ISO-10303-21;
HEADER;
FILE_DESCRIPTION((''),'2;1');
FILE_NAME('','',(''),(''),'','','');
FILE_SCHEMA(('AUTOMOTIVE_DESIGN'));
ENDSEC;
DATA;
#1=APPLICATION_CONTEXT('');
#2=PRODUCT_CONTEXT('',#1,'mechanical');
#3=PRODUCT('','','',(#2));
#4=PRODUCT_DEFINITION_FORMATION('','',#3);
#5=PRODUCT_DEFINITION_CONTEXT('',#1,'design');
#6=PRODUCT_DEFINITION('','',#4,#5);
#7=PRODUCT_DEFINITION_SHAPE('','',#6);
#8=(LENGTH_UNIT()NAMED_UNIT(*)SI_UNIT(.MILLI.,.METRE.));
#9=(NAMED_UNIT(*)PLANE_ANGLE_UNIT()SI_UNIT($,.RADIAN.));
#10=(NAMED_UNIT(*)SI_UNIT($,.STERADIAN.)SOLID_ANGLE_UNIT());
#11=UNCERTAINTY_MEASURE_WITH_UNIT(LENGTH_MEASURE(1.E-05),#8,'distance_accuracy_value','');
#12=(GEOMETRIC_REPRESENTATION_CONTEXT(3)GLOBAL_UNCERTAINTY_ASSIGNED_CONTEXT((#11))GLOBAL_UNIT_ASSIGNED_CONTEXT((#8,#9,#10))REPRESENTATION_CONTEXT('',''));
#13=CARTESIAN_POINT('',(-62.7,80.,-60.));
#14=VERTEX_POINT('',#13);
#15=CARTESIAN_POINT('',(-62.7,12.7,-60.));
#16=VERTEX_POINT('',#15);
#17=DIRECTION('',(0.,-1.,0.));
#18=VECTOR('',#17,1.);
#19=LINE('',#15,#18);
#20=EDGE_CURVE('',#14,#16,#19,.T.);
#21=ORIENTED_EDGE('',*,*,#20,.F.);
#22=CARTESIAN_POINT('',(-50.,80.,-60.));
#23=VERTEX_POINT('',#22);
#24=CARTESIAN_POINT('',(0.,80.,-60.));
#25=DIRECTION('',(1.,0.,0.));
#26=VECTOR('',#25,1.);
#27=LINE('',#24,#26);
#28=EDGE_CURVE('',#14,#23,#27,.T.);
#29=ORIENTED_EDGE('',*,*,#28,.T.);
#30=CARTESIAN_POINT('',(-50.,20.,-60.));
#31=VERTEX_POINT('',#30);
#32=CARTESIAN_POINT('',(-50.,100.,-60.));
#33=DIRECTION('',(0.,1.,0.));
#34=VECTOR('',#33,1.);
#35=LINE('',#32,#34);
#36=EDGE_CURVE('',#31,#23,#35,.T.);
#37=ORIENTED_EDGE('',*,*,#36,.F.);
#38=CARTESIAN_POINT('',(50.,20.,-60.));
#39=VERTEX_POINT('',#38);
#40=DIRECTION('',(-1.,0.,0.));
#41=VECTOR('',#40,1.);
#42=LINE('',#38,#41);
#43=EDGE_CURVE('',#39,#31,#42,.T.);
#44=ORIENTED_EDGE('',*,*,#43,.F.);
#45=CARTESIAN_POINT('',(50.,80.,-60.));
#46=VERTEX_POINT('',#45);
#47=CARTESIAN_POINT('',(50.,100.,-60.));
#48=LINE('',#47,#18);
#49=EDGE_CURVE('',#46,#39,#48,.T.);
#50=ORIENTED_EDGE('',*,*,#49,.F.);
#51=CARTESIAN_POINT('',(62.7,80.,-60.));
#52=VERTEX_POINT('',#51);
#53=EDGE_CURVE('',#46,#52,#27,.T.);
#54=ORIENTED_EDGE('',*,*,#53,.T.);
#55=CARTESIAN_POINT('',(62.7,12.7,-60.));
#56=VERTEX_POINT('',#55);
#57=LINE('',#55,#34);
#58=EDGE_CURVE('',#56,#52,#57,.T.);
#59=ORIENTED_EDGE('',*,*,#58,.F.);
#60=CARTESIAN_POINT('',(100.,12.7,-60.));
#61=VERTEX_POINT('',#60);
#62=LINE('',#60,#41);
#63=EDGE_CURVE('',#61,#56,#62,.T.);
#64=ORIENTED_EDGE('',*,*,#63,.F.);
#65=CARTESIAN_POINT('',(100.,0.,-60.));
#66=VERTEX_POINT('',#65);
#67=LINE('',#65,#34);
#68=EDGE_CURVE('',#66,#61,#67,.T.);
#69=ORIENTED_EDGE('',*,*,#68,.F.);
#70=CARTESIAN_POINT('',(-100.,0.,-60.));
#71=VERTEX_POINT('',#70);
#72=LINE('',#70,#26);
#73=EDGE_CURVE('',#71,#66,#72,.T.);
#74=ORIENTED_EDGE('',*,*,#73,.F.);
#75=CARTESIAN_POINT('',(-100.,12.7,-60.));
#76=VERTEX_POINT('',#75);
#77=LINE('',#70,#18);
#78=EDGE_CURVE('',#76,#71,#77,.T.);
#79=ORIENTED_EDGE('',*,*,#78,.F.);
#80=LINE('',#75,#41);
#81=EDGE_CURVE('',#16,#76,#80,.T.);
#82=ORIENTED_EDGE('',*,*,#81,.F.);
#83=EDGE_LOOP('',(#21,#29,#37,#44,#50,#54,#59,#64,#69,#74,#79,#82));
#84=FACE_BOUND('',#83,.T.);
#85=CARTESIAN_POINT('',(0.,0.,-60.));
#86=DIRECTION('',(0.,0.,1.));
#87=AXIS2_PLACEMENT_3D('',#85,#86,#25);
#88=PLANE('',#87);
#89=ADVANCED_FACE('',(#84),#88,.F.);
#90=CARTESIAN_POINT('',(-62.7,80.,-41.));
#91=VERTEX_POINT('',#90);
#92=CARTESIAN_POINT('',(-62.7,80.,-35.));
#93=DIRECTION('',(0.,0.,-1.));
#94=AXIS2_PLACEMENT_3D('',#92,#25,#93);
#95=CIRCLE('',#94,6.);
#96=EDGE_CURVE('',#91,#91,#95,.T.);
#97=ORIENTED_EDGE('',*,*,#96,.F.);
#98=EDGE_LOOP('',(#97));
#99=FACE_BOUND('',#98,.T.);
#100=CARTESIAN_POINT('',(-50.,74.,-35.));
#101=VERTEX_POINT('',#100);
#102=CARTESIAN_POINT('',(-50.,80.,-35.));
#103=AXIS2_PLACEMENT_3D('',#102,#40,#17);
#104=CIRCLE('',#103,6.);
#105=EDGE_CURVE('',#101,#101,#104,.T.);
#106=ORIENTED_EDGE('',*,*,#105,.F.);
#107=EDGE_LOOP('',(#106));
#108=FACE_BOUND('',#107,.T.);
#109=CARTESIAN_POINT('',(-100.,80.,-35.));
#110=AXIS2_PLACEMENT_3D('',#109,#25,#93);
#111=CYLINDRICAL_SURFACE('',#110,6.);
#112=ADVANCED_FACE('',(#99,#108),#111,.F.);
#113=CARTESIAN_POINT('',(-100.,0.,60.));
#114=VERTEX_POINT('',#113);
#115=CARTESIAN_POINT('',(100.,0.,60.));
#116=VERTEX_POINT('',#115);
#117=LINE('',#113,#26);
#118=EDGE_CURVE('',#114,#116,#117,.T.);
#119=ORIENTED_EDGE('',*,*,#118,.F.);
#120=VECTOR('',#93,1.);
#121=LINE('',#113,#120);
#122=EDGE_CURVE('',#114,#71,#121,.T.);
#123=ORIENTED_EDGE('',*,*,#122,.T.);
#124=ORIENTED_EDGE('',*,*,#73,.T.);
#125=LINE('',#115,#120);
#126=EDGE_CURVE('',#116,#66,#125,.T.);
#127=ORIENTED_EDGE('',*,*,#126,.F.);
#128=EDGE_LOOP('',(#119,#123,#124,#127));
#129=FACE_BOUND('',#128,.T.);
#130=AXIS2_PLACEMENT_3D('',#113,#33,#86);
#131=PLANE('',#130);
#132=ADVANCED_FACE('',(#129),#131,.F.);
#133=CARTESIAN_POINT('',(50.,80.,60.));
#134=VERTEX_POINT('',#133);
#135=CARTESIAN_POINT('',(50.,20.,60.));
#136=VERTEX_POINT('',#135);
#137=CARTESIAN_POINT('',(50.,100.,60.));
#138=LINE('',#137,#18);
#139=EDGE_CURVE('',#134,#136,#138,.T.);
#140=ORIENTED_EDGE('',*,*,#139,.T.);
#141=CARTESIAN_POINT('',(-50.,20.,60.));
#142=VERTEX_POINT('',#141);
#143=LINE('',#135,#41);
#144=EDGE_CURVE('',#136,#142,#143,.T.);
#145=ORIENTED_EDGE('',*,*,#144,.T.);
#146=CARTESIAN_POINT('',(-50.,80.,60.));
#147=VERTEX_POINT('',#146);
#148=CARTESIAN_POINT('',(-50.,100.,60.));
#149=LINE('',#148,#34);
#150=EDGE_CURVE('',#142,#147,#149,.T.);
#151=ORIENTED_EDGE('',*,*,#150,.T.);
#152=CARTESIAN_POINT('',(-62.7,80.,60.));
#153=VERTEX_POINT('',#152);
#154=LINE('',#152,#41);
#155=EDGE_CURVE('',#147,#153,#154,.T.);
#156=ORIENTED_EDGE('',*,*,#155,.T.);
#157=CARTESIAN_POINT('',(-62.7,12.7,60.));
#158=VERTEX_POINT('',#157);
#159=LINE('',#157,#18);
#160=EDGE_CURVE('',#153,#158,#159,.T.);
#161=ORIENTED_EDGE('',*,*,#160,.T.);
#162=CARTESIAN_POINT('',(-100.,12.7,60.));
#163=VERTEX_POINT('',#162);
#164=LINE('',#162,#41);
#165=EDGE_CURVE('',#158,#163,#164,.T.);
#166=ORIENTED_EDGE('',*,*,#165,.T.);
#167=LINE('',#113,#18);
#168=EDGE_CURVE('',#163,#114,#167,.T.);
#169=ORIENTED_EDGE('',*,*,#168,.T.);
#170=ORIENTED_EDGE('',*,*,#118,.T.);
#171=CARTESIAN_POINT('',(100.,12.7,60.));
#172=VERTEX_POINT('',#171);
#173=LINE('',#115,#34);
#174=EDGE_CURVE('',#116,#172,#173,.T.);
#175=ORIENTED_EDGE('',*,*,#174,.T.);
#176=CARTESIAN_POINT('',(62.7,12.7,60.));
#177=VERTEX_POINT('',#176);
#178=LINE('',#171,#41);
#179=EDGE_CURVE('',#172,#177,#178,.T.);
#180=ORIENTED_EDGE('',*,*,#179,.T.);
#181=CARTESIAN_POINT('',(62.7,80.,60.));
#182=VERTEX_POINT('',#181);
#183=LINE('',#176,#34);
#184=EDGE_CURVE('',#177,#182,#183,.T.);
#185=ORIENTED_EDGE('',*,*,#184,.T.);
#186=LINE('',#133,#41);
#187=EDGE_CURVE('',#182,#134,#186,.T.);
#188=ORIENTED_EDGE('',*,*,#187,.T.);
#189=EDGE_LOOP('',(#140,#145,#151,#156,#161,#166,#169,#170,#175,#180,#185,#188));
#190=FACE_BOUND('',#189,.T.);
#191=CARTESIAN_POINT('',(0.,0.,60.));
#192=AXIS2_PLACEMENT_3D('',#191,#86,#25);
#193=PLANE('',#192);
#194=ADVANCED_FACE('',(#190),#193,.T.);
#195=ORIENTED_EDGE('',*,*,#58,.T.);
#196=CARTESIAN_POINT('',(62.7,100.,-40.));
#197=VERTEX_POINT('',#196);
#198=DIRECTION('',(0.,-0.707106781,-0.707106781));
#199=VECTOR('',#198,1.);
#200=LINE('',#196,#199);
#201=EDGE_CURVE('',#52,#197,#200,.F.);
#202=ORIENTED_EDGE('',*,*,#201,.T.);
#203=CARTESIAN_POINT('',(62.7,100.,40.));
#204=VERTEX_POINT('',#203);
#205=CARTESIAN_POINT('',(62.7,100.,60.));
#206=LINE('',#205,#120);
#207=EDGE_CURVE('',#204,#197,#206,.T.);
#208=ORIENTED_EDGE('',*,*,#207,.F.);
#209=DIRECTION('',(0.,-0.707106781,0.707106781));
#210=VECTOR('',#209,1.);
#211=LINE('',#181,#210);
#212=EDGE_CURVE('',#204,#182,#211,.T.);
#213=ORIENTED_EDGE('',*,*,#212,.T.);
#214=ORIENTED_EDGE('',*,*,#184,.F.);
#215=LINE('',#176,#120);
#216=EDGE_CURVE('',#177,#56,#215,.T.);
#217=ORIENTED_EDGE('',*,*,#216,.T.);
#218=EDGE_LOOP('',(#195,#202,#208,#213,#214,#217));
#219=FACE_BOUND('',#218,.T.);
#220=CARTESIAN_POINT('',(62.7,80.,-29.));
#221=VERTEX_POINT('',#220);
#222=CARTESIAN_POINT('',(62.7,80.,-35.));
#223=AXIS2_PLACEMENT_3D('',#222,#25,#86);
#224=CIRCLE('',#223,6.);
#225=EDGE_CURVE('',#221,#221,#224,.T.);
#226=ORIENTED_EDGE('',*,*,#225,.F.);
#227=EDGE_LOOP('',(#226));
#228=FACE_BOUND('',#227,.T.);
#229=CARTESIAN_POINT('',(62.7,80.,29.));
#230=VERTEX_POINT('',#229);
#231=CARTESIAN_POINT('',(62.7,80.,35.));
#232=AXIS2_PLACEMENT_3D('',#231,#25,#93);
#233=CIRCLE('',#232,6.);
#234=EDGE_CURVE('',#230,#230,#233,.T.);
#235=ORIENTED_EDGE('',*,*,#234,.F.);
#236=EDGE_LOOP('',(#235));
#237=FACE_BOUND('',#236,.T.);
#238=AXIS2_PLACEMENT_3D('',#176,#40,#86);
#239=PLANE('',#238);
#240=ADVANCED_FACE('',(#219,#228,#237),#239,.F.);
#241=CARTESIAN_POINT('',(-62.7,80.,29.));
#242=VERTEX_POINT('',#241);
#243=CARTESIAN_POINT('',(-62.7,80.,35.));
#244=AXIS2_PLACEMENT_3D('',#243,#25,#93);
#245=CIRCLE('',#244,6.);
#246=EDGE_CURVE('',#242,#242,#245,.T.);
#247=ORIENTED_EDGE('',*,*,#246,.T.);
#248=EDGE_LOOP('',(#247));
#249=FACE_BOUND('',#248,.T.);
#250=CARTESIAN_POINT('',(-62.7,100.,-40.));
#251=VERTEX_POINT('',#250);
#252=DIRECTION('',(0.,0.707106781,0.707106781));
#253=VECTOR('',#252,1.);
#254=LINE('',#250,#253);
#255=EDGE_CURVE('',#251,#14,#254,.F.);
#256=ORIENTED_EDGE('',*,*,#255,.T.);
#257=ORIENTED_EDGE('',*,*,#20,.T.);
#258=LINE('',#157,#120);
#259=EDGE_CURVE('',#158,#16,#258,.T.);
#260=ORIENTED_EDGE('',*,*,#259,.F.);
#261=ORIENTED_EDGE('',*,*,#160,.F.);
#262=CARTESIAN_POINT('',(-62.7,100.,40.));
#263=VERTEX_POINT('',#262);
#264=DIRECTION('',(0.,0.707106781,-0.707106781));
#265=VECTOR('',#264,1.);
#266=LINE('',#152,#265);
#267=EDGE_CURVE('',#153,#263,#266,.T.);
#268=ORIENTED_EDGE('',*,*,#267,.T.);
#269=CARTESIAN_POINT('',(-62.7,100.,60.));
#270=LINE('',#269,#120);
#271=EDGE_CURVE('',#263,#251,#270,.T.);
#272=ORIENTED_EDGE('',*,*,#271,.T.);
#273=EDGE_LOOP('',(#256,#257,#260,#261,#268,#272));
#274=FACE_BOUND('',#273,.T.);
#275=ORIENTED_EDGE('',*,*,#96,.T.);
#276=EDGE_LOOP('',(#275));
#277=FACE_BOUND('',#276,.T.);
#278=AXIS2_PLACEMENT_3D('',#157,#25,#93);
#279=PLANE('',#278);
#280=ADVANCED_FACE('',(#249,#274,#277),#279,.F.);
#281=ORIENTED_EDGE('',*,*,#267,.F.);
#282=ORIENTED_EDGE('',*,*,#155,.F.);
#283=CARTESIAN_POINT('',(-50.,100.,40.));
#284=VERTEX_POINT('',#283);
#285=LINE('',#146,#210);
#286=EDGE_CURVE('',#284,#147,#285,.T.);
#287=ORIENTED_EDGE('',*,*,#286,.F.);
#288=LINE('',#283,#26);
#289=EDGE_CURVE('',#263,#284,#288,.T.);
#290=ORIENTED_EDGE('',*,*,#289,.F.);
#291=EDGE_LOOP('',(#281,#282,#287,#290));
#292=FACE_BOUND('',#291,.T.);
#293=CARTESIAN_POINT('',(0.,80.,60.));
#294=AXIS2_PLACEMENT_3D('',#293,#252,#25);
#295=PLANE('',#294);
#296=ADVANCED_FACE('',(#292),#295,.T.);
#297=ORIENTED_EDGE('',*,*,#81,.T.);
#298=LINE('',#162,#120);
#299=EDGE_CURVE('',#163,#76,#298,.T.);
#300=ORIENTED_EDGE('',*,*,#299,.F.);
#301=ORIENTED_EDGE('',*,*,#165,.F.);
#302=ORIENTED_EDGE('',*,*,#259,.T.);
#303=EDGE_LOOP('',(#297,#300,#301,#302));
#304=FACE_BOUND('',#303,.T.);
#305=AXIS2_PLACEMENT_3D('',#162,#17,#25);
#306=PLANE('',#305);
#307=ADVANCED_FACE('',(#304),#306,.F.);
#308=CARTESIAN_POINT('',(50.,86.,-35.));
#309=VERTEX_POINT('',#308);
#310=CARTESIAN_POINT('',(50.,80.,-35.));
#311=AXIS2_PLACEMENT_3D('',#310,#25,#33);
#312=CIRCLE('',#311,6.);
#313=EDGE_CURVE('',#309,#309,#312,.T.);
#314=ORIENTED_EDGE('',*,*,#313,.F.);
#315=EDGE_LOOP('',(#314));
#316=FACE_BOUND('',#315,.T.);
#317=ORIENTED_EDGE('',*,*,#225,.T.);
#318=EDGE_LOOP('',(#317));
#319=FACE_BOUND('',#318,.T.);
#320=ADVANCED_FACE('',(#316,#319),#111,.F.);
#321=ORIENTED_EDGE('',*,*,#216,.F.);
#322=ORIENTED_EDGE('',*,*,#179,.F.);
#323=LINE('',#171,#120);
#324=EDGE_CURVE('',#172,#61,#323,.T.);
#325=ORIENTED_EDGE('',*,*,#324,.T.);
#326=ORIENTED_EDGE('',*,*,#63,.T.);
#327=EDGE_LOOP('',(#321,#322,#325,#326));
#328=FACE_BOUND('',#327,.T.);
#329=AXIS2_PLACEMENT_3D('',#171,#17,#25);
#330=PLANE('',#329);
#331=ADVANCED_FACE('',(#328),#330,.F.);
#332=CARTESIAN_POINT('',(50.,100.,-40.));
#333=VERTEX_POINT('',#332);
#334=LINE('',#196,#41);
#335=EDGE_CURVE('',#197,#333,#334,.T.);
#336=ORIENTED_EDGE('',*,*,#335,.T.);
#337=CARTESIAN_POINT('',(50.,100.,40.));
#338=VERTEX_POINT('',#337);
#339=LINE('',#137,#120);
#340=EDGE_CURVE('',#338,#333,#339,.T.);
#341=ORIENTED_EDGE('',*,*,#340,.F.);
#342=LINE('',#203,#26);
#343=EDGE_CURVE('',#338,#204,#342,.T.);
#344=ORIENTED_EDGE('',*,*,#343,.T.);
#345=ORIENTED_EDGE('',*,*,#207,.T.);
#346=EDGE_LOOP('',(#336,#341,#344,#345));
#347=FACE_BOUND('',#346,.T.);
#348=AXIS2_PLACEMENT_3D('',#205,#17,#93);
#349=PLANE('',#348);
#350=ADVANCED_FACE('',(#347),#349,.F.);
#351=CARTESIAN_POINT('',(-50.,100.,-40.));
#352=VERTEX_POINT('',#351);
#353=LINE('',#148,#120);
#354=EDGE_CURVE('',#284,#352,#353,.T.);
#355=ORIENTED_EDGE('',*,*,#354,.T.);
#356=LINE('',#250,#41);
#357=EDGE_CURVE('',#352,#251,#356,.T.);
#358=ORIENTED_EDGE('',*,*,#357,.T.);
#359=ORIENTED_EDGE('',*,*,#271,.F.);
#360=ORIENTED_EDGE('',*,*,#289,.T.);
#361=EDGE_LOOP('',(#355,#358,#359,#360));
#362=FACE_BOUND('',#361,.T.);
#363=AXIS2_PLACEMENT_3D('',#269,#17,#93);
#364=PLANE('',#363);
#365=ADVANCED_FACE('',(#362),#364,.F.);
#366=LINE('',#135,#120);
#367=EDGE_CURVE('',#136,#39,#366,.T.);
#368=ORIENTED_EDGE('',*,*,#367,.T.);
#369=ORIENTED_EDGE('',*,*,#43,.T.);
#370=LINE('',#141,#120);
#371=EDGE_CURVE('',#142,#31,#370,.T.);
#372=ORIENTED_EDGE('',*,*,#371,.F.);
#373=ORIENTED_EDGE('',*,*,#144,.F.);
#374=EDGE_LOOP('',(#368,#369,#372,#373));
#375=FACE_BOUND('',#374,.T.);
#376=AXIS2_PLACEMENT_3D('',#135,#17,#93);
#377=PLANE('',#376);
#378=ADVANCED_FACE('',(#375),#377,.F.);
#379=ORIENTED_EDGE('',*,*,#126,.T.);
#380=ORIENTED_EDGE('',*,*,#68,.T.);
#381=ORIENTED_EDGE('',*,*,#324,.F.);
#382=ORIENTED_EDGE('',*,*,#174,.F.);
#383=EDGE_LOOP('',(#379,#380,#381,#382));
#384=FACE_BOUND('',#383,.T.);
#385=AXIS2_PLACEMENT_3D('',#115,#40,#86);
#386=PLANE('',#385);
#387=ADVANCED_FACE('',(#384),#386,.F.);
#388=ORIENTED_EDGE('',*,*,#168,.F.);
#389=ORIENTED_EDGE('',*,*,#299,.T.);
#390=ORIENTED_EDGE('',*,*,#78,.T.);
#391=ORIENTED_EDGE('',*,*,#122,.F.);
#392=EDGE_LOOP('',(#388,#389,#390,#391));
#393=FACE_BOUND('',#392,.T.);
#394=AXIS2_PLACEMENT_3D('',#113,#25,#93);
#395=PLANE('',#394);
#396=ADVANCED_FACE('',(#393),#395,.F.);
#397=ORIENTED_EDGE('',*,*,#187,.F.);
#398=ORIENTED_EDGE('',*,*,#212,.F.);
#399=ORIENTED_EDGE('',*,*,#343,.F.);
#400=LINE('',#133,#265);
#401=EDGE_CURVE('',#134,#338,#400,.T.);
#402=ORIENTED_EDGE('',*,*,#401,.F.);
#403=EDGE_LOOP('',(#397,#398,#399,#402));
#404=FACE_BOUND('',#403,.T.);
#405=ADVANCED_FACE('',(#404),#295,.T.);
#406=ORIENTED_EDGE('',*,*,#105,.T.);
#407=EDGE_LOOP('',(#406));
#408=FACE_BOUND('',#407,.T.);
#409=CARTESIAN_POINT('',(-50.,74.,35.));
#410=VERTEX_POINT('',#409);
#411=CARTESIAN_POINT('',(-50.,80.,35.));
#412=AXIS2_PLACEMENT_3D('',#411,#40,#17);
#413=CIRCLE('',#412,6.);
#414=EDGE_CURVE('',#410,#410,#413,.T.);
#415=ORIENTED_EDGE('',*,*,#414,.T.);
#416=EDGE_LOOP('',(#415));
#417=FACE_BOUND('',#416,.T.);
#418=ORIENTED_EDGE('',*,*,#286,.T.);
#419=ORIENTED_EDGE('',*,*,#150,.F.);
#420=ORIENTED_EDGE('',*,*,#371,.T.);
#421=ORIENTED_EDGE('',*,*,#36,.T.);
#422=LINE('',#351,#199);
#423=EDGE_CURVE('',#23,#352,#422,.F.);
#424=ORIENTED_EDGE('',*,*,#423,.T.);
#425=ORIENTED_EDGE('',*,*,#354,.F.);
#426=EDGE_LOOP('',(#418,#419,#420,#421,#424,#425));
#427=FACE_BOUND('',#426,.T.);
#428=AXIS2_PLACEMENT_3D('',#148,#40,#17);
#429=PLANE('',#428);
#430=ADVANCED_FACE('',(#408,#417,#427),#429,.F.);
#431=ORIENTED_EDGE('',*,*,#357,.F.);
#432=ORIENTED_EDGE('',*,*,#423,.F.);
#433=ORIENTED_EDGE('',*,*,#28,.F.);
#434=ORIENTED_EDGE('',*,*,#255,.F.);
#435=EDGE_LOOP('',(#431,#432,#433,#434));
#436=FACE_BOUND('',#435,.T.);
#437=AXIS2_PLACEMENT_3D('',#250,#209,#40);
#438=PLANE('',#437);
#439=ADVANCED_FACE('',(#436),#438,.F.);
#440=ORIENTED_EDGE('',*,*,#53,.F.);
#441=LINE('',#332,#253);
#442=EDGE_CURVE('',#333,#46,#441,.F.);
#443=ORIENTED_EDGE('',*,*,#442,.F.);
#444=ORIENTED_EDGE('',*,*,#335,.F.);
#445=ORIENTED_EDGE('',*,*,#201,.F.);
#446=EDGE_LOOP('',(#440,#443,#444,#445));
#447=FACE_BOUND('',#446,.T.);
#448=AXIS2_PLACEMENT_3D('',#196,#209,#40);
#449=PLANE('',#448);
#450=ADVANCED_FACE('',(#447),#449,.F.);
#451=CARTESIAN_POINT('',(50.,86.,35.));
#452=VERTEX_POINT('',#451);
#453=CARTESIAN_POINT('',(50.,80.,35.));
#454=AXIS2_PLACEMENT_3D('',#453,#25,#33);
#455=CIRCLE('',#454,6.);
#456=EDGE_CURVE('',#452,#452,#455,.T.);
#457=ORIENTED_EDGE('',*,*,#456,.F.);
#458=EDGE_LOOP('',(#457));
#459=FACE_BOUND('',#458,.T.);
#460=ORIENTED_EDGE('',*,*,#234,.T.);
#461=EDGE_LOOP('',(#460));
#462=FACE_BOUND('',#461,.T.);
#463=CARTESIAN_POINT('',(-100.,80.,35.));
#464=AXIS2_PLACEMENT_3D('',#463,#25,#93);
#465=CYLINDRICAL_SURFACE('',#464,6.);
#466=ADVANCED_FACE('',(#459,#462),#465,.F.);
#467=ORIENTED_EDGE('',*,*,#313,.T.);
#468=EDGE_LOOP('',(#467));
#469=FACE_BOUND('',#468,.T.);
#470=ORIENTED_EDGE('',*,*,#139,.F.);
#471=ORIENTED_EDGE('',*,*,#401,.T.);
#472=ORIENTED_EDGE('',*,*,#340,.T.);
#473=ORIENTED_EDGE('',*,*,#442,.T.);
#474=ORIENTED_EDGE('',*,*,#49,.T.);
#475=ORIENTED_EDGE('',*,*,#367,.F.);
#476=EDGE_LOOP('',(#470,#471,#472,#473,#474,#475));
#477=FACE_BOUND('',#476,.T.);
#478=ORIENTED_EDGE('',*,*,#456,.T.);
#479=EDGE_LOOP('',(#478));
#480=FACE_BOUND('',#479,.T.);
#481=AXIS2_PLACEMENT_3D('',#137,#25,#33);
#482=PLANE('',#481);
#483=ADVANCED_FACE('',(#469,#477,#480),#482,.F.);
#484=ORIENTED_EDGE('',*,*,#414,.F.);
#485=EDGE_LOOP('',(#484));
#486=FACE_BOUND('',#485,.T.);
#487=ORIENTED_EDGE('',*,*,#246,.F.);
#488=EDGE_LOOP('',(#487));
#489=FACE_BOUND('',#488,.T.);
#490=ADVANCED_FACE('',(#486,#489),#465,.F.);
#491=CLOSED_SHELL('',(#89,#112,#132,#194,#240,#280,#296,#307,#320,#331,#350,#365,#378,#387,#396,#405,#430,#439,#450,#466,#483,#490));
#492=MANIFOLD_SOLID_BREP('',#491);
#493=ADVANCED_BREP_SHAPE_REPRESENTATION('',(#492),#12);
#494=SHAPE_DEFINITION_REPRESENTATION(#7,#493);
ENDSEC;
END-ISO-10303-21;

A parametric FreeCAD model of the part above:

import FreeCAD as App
import Part
import Sketcher
from FreeCAD import Vector


def edges_at(feature, points):
    """Names of the edges that pass closest to the given points."""
    edges = feature.Shape.Edges
    near = lambda p: min(range(len(edges)), key=lambda i: edges[i].distToShape(Part.Vertex(*p))[0])
    return sorted({f"Edge{near(p) + 1}" for p in points})

doc = App.newDocument("Part")
body = doc.addObject("PartDesign::Body", "Body")

sketch1 = doc.addObject("Sketcher::SketchObject", "Sketch")
body.addObject(sketch1)
sketch1.AttachmentSupport = (doc.XY_Plane, [""])
sketch1.MapMode = "FlatFace"
sketch1.addGeometry([
    Part.LineSegment(Vector(-100, 0, 0), Vector(100, 0, 0)),
    Part.LineSegment(Vector(100, 0, 0), Vector(100, 13, 0)),
    Part.LineSegment(Vector(100, 13, 0), Vector(63, 13, 0)),
    Part.LineSegment(Vector(63, 13, 0), Vector(63, 100, 0)),
    Part.LineSegment(Vector(63, 100, 0), Vector(50, 100, 0)),
    Part.LineSegment(Vector(50, 100, 0), Vector(50, 20, 0)),
    Part.LineSegment(Vector(50, 20, 0), Vector(-50, 20, 0)),
    Part.LineSegment(Vector(-50, 20, 0), Vector(-50, 100, 0)),
    Part.LineSegment(Vector(-50, 100, 0), Vector(-63, 100, 0)),
    Part.LineSegment(Vector(-63, 100, 0), Vector(-63, 13, 0)),
    Part.LineSegment(Vector(-63, 13, 0), Vector(-100, 13, 0)),
    Part.LineSegment(Vector(-100, 13, 0), Vector(-100, 0, 0)),
], False)
sketch1.addConstraint([
    Sketcher.Constraint("Coincident", 0, 2, 1, 1),
    Sketcher.Constraint("Coincident", 1, 2, 2, 1),
    Sketcher.Constraint("Coincident", 2, 2, 3, 1),
    Sketcher.Constraint("Coincident", 3, 2, 4, 1),
    Sketcher.Constraint("Coincident", 4, 2, 5, 1),
    Sketcher.Constraint("Coincident", 5, 2, 6, 1),
    Sketcher.Constraint("Coincident", 6, 2, 7, 1),
    Sketcher.Constraint("Coincident", 7, 2, 8, 1),
    Sketcher.Constraint("Coincident", 8, 2, 9, 1),
    Sketcher.Constraint("Coincident", 9, 2, 10, 1),
    Sketcher.Constraint("Coincident", 10, 2, 11, 1),
    Sketcher.Constraint("Coincident", 11, 2, 0, 1),
    Sketcher.Constraint("Horizontal", 0),
    Sketcher.Constraint("Vertical", 1),
    Sketcher.Constraint("Horizontal", 2),
    Sketcher.Constraint("Vertical", 3),
    Sketcher.Constraint("Horizontal", 4),
    Sketcher.Constraint("Vertical", 5),
    Sketcher.Constraint("Horizontal", 6),
    Sketcher.Constraint("Vertical", 7),
    Sketcher.Constraint("Horizontal", 8),
    Sketcher.Constraint("Vertical", 9),
    Sketcher.Constraint("Horizontal", 10),
    Sketcher.Constraint("Vertical", 11),
    Sketcher.Constraint("Symmetric", 0, 2, 11, 2, -1, 1),
    Sketcher.Constraint("Symmetric", 4, 2, 7, 2, -2),
    Sketcher.Constraint("Symmetric", 2, 2, 9, 2, -2),
    Sketcher.Constraint("Equal", 8, 1),
    Sketcher.Constraint("DistanceX", 0, 1, 0, 2, 200.0),
    Sketcher.Constraint("DistanceX", 6, 2, 6, 1, 100.0),
    Sketcher.Constraint("DistanceY", 5, 2, 5, 1, 80.0),
    Sketcher.Constraint("DistanceX", 2, 2, 2, 1, 37.3),
    Sketcher.Constraint("DistanceY", 3, 1, 3, 2, 87.3),
])
pad1 = doc.addObject("PartDesign::Pad", "Pad")
body.addObject(pad1)
pad1.Profile = sketch1
pad1.Length = 120
pad1.Midplane = True
doc.recompute()

chamfer = doc.addObject("PartDesign::Chamfer", "Chamfer")
body.addObject(chamfer)
chamfer.Base = (pad1, edges_at(pad1, [
    (-56.35, 100, -60),
    (56.35, 100, 60),
    (56.35, 100, -60),
    (-56.35, 100, 60),
]))
chamfer.Size = 20

sketch2 = doc.addObject("Sketcher::SketchObject", "Sketch001")
body.addObject(sketch2)
sketch2.AttachmentSupport = (doc.YZ_Plane, [""])
sketch2.MapMode = "FlatFace"
sketch2.AttachmentOffset = App.Placement(Vector(0, 0, 62.7), App.Rotation())
sketch2.addGeometry([
    Part.Circle(Vector(80, 35, 0), Vector(0, 0, 1), 6),
    Part.Circle(Vector(80, -35, 0), Vector(0, 0, 1), 6),
], False)
sketch2.addConstraint([
    Sketcher.Constraint("Equal", 0, 1),
    Sketcher.Constraint("Symmetric", 0, 3, 1, 3, -1),
    Sketcher.Constraint("Diameter", 0, 12.0),
    Sketcher.Constraint("DistanceX", -1, 1, 0, 3, 80.0),
    Sketcher.Constraint("DistanceY", -1, 1, 0, 3, 35.0),
])
pocket1 = doc.addObject("PartDesign::Pocket", "Pocket")
body.addObject(pocket1)
pocket1.Profile = sketch2
pocket1.Type = "ThroughAll"

doc.recompute()
